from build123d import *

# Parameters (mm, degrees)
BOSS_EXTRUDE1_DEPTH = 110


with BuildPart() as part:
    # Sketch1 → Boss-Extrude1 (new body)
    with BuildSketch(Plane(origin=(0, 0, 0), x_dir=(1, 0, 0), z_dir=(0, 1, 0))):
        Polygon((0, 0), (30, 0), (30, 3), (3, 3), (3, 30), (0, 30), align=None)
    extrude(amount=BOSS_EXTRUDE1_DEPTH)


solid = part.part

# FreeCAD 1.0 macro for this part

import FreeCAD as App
import Part
import Sketcher
from FreeCAD import Vector

doc = App.newDocument("Part")
params = doc.addObject("Spreadsheet::Sheet", "Params")
for row, (alias, value) in enumerate([
    ("sketch1_width", "30 mm"),
    ("sketch1_width2", "27 mm"),
    ("pad1_length", "110 mm"),
], start=1):
    params.set(f"A{row}", alias)
    params.set(f"B{row}", "=" + value)
    params.setAlias(f"B{row}", alias)

body = doc.addObject("PartDesign::Body", "Body")

sketch1 = body.newObject("Sketcher::SketchObject", "Sketch")
sketch1.AttachmentSupport = (doc.getObject("XZ_Plane"), [""])
sketch1.MapMode = "FlatFace"
sketch1.addGeometry(Part.LineSegment(Vector(0, 0, 0), Vector(30, 0, 0)), False)
sketch1.addGeometry(Part.LineSegment(Vector(30, 0, 0), Vector(30, -3, 0)), False)
sketch1.addGeometry(Part.LineSegment(Vector(30, -3, 0), Vector(3, -3, 0)), False)
sketch1.addGeometry(Part.LineSegment(Vector(3, -3, 0), Vector(3, -30, 0)), False)
sketch1.addGeometry(Part.LineSegment(Vector(3, -30, 0), Vector(0, -30, 0)), False)
sketch1.addGeometry(Part.LineSegment(Vector(0, -30, 0), Vector(0, 0, 0)), False)
sketch1.addConstraint(Sketcher.Constraint("Coincident", 0, 2, 1, 1))
sketch1.addConstraint(Sketcher.Constraint("Coincident", 1, 2, 2, 1))
sketch1.addConstraint(Sketcher.Constraint("Coincident", 2, 2, 3, 1))
sketch1.addConstraint(Sketcher.Constraint("Coincident", 3, 2, 4, 1))
sketch1.addConstraint(Sketcher.Constraint("Coincident", 4, 2, 5, 1))
sketch1.addConstraint(Sketcher.Constraint("Coincident", 5, 2, 0, 1))
sketch1.addConstraint(Sketcher.Constraint("Horizontal", 0))
sketch1.addConstraint(Sketcher.Constraint("Vertical", 1))
sketch1.addConstraint(Sketcher.Constraint("Horizontal", 2))
sketch1.addConstraint(Sketcher.Constraint("Vertical", 3))
sketch1.addConstraint(Sketcher.Constraint("Horizontal", 4))
sketch1.addConstraint(Sketcher.Constraint("Vertical", 5))
sketch1.addConstraint(Sketcher.Constraint("Coincident", 5, 2, -1, 1))
sketch1.addConstraint(Sketcher.Constraint("Equal", 4, 1))
sketch1.addConstraint(Sketcher.Constraint("Equal", 2, 3))
sketch1.addConstraint(Sketcher.Constraint("DistanceX", 0, 1, 0, 2, 30.0))
sketch1.addConstraint(Sketcher.Constraint("DistanceX", 2, 2, 2, 1, 27.0))
sketch1.setExpression("Constraints[15]", "Params.sketch1_width")
sketch1.setExpression("Constraints[16]", "Params.sketch1_width2")
pad1 = body.newObject("PartDesign::Pad", "Pad")
pad1.Profile = sketch1
pad1.setExpression("Length", "Params.pad1_length")
pad1.Reversed = True

doc.recompute()
